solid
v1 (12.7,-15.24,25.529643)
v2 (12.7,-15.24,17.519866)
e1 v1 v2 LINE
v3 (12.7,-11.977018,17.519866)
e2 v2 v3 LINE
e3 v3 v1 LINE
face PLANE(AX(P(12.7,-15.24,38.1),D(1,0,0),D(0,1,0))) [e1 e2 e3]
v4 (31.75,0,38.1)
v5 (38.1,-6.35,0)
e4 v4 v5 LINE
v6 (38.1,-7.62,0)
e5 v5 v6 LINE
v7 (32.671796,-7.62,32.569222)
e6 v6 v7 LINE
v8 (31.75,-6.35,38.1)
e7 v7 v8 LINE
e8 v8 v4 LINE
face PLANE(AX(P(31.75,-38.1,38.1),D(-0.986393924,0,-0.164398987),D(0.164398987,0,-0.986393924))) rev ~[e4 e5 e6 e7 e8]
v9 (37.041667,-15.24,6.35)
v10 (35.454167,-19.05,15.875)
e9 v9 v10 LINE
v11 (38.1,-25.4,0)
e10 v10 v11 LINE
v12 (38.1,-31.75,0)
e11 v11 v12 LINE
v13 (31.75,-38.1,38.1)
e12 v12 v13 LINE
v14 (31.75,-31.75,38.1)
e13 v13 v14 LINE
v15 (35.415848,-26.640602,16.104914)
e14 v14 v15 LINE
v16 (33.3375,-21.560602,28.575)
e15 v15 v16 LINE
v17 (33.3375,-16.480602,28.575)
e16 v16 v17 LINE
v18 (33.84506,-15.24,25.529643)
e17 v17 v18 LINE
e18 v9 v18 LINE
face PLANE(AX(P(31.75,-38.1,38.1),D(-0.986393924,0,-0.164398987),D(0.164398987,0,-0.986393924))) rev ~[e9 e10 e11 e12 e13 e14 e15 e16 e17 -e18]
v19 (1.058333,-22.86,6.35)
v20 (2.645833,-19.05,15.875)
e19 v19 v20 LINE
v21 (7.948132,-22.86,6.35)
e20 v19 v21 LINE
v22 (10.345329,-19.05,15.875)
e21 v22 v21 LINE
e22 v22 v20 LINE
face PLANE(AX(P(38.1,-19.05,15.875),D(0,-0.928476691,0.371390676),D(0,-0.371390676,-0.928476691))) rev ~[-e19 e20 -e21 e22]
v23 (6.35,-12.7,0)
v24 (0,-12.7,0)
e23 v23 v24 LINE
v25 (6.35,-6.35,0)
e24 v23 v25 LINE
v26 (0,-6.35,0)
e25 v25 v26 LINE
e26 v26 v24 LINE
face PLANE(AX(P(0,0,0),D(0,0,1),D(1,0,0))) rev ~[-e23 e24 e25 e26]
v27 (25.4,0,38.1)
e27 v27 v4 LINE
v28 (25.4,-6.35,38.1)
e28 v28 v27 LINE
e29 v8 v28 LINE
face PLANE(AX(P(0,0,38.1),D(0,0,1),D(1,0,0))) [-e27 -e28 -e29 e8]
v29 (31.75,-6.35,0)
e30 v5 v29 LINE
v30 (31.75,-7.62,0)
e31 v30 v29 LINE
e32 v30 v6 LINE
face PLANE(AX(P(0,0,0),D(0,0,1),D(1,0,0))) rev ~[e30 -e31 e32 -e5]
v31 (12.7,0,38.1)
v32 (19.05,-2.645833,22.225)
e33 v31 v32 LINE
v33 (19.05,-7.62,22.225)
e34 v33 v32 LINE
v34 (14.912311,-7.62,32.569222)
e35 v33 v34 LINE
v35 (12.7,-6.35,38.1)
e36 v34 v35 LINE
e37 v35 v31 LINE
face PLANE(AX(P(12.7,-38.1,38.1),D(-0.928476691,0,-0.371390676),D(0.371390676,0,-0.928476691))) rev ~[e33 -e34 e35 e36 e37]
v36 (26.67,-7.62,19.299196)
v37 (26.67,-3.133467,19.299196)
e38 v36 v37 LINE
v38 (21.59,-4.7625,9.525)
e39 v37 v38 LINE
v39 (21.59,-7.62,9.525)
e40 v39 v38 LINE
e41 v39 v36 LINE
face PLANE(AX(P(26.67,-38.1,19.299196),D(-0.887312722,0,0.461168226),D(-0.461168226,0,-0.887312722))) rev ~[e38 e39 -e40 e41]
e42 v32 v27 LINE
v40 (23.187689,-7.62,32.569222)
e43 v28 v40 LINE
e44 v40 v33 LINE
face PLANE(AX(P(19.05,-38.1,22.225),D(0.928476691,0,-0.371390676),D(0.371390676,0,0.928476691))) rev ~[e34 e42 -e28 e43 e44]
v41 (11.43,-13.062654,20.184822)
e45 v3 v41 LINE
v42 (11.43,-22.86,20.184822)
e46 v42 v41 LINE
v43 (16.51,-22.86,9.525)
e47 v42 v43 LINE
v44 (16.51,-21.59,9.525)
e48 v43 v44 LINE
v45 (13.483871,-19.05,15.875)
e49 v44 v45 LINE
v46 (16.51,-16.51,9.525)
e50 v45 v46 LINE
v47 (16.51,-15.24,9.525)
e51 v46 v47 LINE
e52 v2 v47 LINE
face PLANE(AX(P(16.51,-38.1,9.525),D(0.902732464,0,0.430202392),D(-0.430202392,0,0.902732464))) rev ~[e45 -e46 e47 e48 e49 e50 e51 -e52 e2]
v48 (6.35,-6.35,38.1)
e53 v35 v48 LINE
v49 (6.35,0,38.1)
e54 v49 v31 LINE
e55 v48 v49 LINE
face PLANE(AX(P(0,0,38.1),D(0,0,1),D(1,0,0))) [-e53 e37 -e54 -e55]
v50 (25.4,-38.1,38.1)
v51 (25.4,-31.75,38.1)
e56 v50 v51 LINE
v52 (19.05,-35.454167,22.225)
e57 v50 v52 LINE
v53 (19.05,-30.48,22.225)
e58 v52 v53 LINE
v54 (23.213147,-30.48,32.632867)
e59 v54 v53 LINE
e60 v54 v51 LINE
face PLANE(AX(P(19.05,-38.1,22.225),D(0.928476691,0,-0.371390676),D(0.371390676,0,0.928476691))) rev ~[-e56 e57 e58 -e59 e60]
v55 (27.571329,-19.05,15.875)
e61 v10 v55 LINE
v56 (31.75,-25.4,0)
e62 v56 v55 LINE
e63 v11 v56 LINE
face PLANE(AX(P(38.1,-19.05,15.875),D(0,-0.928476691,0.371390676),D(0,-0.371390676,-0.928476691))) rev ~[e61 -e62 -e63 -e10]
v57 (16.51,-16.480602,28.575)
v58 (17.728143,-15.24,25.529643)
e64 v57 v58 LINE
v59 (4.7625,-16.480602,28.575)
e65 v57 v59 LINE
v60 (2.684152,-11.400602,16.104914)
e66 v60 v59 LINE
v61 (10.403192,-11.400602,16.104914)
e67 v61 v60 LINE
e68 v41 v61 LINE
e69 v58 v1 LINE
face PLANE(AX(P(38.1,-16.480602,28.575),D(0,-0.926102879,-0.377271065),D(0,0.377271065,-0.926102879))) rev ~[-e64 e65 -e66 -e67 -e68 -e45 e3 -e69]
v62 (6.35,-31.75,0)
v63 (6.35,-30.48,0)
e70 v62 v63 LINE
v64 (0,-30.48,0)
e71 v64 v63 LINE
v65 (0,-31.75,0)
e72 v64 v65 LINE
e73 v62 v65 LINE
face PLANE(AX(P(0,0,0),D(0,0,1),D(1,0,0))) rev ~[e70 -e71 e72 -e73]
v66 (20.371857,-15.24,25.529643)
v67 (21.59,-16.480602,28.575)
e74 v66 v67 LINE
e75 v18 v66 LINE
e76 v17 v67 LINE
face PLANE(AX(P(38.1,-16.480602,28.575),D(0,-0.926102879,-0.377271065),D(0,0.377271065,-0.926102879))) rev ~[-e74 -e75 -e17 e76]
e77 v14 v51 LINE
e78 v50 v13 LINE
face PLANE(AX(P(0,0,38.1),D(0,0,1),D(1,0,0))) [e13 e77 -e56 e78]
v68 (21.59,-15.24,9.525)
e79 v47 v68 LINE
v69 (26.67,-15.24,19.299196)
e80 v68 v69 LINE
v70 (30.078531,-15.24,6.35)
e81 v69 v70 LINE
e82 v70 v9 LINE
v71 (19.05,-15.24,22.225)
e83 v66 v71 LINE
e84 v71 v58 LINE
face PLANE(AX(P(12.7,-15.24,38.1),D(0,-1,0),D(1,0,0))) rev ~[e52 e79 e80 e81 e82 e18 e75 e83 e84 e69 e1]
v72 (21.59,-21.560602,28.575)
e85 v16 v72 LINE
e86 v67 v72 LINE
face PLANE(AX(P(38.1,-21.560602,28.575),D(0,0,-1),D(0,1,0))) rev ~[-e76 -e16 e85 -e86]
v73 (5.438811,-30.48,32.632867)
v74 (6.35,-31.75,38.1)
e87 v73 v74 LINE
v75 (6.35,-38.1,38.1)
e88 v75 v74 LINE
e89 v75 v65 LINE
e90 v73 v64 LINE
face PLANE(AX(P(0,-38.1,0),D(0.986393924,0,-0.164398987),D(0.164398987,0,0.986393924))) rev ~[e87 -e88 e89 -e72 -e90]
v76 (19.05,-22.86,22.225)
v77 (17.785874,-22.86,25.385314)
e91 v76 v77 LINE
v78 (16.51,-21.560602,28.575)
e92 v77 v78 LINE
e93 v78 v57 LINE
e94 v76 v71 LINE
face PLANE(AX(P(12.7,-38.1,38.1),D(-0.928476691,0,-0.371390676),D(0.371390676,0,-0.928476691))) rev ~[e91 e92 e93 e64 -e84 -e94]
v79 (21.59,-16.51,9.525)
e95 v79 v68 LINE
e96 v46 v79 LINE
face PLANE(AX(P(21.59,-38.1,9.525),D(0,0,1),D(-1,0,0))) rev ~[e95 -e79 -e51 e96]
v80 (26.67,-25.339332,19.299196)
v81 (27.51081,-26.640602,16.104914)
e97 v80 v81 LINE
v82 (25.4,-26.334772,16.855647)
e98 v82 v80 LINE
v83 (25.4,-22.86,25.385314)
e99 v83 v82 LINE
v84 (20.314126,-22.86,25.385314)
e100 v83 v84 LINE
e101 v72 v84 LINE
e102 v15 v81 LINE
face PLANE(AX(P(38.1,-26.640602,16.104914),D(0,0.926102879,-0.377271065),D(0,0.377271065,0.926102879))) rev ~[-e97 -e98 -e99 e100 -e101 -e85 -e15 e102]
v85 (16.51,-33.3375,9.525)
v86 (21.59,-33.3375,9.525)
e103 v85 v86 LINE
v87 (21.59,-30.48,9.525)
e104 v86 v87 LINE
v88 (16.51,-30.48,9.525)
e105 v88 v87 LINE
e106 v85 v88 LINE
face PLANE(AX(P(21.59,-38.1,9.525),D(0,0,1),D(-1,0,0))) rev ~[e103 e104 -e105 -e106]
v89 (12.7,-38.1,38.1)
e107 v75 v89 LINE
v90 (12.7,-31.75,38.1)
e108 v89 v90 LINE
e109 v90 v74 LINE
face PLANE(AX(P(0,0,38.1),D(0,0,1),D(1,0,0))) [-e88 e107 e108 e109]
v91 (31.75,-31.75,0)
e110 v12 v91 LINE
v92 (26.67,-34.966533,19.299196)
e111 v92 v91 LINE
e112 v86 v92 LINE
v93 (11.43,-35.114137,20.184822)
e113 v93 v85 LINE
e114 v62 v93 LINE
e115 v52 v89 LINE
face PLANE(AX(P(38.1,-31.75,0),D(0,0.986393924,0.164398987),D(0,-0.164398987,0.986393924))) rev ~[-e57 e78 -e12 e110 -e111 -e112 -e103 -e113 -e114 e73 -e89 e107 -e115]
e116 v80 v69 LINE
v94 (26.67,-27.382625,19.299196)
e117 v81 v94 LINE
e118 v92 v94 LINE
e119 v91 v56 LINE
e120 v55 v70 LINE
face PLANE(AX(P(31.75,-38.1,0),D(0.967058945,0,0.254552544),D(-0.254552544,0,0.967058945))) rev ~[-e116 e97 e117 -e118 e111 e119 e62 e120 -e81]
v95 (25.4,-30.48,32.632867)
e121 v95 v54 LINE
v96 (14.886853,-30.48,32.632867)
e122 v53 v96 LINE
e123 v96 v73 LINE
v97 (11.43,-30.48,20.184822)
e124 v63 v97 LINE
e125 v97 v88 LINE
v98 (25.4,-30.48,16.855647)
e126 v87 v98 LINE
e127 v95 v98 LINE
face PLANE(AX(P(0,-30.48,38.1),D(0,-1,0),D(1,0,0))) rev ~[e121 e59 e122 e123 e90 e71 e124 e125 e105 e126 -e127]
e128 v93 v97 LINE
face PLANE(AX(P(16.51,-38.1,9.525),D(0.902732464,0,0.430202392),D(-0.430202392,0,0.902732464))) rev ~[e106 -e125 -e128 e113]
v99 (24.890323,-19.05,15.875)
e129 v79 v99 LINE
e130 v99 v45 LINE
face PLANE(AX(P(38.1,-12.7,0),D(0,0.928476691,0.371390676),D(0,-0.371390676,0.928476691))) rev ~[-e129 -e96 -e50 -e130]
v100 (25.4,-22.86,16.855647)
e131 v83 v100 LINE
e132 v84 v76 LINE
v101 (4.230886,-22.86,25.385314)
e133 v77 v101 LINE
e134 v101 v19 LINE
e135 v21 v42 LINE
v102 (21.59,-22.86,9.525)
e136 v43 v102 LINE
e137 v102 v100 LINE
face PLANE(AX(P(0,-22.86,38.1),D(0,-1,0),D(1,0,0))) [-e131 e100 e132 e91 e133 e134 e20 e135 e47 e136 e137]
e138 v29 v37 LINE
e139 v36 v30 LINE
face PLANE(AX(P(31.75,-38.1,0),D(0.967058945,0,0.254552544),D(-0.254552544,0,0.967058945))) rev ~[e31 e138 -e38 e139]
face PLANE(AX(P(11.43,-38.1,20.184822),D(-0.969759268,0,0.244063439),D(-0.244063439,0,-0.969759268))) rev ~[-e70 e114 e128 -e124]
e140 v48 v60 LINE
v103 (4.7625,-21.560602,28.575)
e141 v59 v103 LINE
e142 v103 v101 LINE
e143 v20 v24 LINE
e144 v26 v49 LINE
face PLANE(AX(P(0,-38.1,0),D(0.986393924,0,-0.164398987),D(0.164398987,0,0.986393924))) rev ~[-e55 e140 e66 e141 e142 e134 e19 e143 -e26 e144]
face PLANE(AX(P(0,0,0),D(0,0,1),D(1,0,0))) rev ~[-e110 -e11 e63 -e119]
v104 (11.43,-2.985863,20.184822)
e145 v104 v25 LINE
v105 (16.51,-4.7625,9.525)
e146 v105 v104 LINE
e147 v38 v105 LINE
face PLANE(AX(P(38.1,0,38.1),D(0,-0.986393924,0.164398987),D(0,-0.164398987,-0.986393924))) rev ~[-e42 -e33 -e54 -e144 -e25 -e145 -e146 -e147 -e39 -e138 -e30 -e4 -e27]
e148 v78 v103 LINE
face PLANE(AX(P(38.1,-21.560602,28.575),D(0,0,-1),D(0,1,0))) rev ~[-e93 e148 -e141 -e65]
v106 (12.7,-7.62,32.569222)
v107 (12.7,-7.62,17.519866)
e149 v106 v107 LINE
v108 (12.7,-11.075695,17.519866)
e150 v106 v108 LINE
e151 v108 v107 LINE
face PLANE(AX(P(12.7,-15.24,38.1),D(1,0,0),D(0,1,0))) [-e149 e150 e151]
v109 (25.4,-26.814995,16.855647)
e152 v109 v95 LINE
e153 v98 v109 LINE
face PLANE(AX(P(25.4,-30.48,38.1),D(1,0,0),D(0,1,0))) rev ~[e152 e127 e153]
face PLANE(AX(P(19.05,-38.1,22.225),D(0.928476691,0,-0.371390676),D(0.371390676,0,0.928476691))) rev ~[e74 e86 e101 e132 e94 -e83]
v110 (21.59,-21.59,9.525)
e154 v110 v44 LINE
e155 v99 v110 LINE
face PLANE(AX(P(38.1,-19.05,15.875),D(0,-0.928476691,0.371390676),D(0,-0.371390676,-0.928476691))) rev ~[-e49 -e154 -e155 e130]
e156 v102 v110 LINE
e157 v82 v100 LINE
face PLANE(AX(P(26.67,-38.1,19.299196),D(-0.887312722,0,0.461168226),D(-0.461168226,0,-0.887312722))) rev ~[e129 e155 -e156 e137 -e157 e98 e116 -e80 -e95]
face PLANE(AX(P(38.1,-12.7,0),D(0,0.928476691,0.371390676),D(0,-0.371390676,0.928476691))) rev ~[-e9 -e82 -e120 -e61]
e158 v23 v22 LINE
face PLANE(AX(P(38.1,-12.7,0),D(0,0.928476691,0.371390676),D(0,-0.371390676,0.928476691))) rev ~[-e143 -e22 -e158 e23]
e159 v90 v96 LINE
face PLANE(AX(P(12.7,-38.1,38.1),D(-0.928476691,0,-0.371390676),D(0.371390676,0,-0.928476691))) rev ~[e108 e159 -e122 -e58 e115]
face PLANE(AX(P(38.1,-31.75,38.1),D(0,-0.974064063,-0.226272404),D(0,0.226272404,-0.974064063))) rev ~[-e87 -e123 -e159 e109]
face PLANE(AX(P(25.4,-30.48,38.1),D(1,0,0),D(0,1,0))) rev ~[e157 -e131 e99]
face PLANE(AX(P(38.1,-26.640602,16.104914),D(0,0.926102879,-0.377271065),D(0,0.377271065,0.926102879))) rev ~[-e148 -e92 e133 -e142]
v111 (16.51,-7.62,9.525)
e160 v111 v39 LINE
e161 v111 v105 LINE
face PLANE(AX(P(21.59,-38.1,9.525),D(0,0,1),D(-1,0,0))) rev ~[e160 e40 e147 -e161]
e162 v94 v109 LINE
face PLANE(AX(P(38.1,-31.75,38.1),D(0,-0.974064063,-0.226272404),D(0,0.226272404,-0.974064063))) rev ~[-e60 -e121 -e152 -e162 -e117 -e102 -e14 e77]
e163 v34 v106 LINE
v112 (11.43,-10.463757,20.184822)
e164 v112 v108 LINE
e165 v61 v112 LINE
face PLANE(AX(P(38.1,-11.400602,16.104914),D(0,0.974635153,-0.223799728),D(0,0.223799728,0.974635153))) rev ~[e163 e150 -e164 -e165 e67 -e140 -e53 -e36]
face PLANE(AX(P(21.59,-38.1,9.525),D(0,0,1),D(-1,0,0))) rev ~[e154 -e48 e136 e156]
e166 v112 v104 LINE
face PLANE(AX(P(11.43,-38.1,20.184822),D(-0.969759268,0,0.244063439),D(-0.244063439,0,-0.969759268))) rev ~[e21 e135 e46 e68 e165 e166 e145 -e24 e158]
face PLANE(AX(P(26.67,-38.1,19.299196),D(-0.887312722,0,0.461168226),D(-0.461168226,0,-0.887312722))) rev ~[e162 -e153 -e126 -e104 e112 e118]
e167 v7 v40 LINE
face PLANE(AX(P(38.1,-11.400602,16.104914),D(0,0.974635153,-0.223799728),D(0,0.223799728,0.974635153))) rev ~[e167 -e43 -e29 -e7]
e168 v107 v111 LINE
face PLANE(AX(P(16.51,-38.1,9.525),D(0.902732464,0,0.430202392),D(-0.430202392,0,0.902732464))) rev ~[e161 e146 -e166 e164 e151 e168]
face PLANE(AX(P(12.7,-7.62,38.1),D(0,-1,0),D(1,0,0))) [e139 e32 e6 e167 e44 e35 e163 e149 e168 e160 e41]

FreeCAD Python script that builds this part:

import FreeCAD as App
import Part
import Sketcher
from FreeCAD import Vector
Q = App.Units.Quantity


def add_polygon(sketch, points):
    """Adds a closed chain of lines whose ends are joined by coincident constraints."""
    first, n = sketch.GeometryCount, len(points)
    for a, b in zip(points, points[1:] + points[:1]):
        sketch.addGeometry(Part.LineSegment(App.Vector(*a, 0), App.Vector(*b, 0)), False)
    for i in range(n):
        sketch.addConstraint(Sketcher.Constraint("Coincident", first + i, 2, first + (i + 1) % n, 1))

doc = App.newDocument("Part")
body = doc.addObject("PartDesign::Body", "Body")

# Sketch on XZ plane
sketch1 = doc.addObject("Sketcher::SketchObject", "Sketch")
body.addObject(sketch1)
sketch1.AttachmentSupport = (doc.XZ_Plane, [""])
sketch1.MapMode = "FlatFace"
add_polygon(sketch1, [(0, 38.1), (0, 0), (38.1, 0), (38.1, 38.1)])  # lines 0-3
sketch1.addConstraint([
    Sketcher.Constraint("Vertical", 0),
    Sketcher.Constraint("Horizontal", 1),
    Sketcher.Constraint("Vertical", 2),
    Sketcher.Constraint("Horizontal", 3),
    Sketcher.Constraint("Coincident", 0, 2, -1, 1),
    Sketcher.Constraint("Equal", 3, 0),
    Sketcher.Constraint("DistanceX", 1, 1, 1, 2, Q("1.5 in")),
])
pad1 = doc.addObject("PartDesign::Pad", "Pad")
body.addObject(pad1)
pad1.Profile = sketch1
pad1.Length = Q("1.5 in")

# Sketch on YZ plane
sketch2 = doc.addObject("Sketcher::SketchObject", "Sketch001")
body.addObject(sketch2)
sketch2.AttachmentSupport = (doc.YZ_Plane, [""])
sketch2.MapMode = "FlatFace"
sketch2.AttachmentOffset = App.Placement(Vector(0, 0, 1.5 * 25.4), App.Rotation())
add_polygon(sketch2, [(-11.400602, 16.104914), (-6.35, 38.1), (-31.75, 38.1), (-26.640602, 16.104914), (-21.560602, 28.575), (-16.480602, 28.575)])  # lines 0-5
add_polygon(sketch2, [(-6.35, 0), (0, 0), (0, 38.1)])  # lines 6-8
add_polygon(sketch2, [(-25.4, 0), (-12.7, 0), (-19.05, 15.875)])  # lines 9-11
add_polygon(sketch2, [(-38.1, 0), (-31.75, 0), (-38.1, 38.1)])  # lines 12-14
sketch2.addConstraint([
    Sketcher.Constraint("Horizontal", 1),
    Sketcher.Constraint("Horizontal", 4),
    Sketcher.Constraint("Horizontal", 6),
    Sketcher.Constraint("Vertical", 7),
    Sketcher.Constraint("Horizontal", 9),
    Sketcher.Constraint("Horizontal", 12),
    Sketcher.Constraint("Vertical", 14),
    Sketcher.Constraint("Coincident", 6, 2, -1, 1),
    Sketcher.Constraint("PointOnObject", 9, 2, -1),
    Sketcher.Constraint("PointOnObject", 12, 2, -1),
    Sketcher.Constraint("Horizontal", 2, 2, 5, 2),
    Sketcher.Constraint("Horizontal", 1, 2, 7, 2),
    Sketcher.Constraint("Horizontal", 7, 2, 13, 2),
    Sketcher.Constraint("Vertical", 0, 2, 8, 2),
    Sketcher.Constraint("Vertical", 1, 2, 12, 2),
    Sketcher.Constraint("Equal", 6, 12),
    Sketcher.Constraint("Equal", 3, 5),
    Sketcher.Constraint("Equal", 10, 11),
    Sketcher.Constraint("DistanceX", 1, 2, 1, 1, Q("1 in")),
    Sketcher.Constraint("DistanceX", 4, 1, 4, 2, Q("0.2 in")),
    Sketcher.Constraint("DistanceX", 9, 1, 9, 2, Q("0.5 in")),
    Sketcher.Constraint("DistanceY", 7, 1, 7, 2, Q("1.5 in")),
    Sketcher.Constraint("DistanceX", 11, 2, -1, 1, Q("1 in")),
    Sketcher.Constraint("DistanceX", 14, 2, 9, 2, Q("1 in")),
    Sketcher.Constraint("DistanceX", 2, 2, 3, 2, Q("0.2 in")),
    Sketcher.Constraint("DistanceY", 10, 2, 3, 2, Q("0.5 in")),
    Sketcher.Constraint("DistanceY", -1, 1, 3, 2, Q("1.125 in")),
    Sketcher.Constraint("DistanceX", 3, 2, -1, 1, 21.560602),
    Sketcher.Constraint("Distance", 2, 22.580739),
])
pocket1 = doc.addObject("PartDesign::Pocket", "Pocket")
body.addObject(pocket1)
pocket1.Profile = sketch2
pocket1.Length = Q("1.5 in")

# Sketch on XZ plane
sketch3 = doc.addObject("Sketcher::SketchObject", "Sketch002")
body.addObject(sketch3)
sketch3.AttachmentSupport = (doc.XZ_Plane, [""])
sketch3.MapMode = "FlatFace"
sketch3.AttachmentOffset = App.Placement(Vector(0, 0, 1.5 * 25.4), App.Rotation())
add_polygon(sketch3, [(0, 38.1), (0, 0), (6.35, 38.1)])  # lines 0-2
add_polygon(sketch3, [(25.4, 38.1), (12.7, 38.1), (19.05, 22.225)])  # lines 3-5
add_polygon(sketch3, [(31.75, 38.1), (38.1, 0), (38.1, 38.1)])  # lines 6-8
add_polygon(sketch3, [(11.43, 20.184822), (6.35, 0), (31.75, 0), (26.67, 19.299196), (21.59, 9.525), (16.51, 9.525)])  # lines 9-14
sketch3.addConstraint([
    Sketcher.Constraint("Vertical", 0),
    Sketcher.Constraint("Horizontal", 2),
    Sketcher.Constraint("Horizontal", 3),
    Sketcher.Constraint("Vertical", 7),
    Sketcher.Constraint("Horizontal", 8),
    Sketcher.Constraint("Horizontal", 10),
    Sketcher.Constraint("Horizontal", 13),
    Sketcher.Constraint("Coincident", 0, 2, -1, 1),
    Sketcher.Constraint("PointOnObject", 6, 2, -1),
    Sketcher.Constraint("PointOnObject", 9, 2, -1),
    Sketcher.Constraint("Horizontal", 2, 2, 3, 2),
    Sketcher.Constraint("Horizontal", 5, 2, 7, 2),
    Sketcher.Constraint("Vertical", 1, 2, 9, 2),
    Sketcher.Constraint("Vertical", 8, 2, 10, 2),
    Sketcher.Constraint("Equal", 2, 8),
    Sketcher.Constraint("Equal", 4, 5),
    Sketcher.Constraint("DistanceX", 10, 1, 10, 2, Q("1 in")),
    Sketcher.Constraint("DistanceX", 3, 2, 3, 1, Q("0.5 in")),
    Sketcher.Constraint("DistanceX", 13, 2, 13, 1, Q("0.2 in")),
    Sketcher.Constraint("DistanceY", 0, 2, 0, 1, Q("1.5 in")),
    Sketcher.Constraint("DistanceX", -1, 1, 5, 2, Q("1 in")),
    Sketcher.Constraint("DistanceX", 3, 2, 6, 2, Q("1 in")),
    Sketcher.Constraint("DistanceX", 4, 2, 11, 2, Q("0.3 in")),
    Sketcher.Constraint("DistanceX", 12, 2, 11, 2, Q("0.2 in")),
    Sketcher.Constraint("DistanceY", 12, 2, 4, 2, Q("0.5 in")),
    Sketcher.Constraint("DistanceX", 14, 2, 4, 2, Q("0.3 in")),
    Sketcher.Constraint("DistanceY", -1, 1, 4, 2, Q("0.875 in")),
    Sketcher.Constraint("Distance", 9, 20.81426),
    Sketcher.Constraint("Distance", 11, 19.956587),
])
pocket2 = doc.addObject("PartDesign::Pocket", "Pocket001")
body.addObject(pocket2)
pocket2.Profile = sketch3
pocket2.Length = Q("1.5 in")

# Sketch on XY plane
sketch4 = doc.addObject("Sketcher::SketchObject", "Sketch003")
body.addObject(sketch4)
sketch4.AttachmentSupport = (doc.XY_Plane, [""])
sketch4.MapMode = "FlatFace"
sketch4.AttachmentOffset = App.Placement(Vector(0, 0, 1.5 * 25.4), App.Rotation())
add_polygon(sketch4, [(0, -22.86), (0, -30.48), (25.4, -30.48), (25.4, -22.86)])  # lines 0-3
add_polygon(sketch4, [(12.7, -7.62), (12.7, -15.24), (38.1, -15.24), (38.1, -7.62)])  # lines 4-7
sketch4.addConstraint([
    Sketcher.Constraint("Vertical", 0),
    Sketcher.Constraint("Horizontal", 1),
    Sketcher.Constraint("Vertical", 2),
    Sketcher.Constraint("Horizontal", 3),
    Sketcher.Constraint("Vertical", 4),
    Sketcher.Constraint("Horizontal", 5),
    Sketcher.Constraint("Vertical", 6),
    Sketcher.Constraint("Horizontal", 7),
    Sketcher.Constraint("PointOnObject", 0, 2, -2),
    Sketcher.Constraint("Equal", 3, 5),
    Sketcher.Constraint("Equal", 2, 4),
    Sketcher.Constraint("DistanceX", 1, 1, 1, 2, Q("1 in")),
    Sketcher.Constraint("DistanceY", 0, 2, 0, 1, Q("0.3 in")),
    Sketcher.Constraint("DistanceY", 0, 2, -1, 1, Q("1.2 in")),
    Sketcher.Constraint("DistanceX", -1, 1, 4, 2, Q("0.5 in")),
    Sketcher.Constraint("DistanceY", 4, 2, -1, 1, Q("0.6 in")),
])
pocket3 = doc.addObject("PartDesign::Pocket", "Pocket002")
body.addObject(pocket3)
pocket3.Profile = sketch4
pocket3.Length = Q("1.5 in")

doc.recompute()
